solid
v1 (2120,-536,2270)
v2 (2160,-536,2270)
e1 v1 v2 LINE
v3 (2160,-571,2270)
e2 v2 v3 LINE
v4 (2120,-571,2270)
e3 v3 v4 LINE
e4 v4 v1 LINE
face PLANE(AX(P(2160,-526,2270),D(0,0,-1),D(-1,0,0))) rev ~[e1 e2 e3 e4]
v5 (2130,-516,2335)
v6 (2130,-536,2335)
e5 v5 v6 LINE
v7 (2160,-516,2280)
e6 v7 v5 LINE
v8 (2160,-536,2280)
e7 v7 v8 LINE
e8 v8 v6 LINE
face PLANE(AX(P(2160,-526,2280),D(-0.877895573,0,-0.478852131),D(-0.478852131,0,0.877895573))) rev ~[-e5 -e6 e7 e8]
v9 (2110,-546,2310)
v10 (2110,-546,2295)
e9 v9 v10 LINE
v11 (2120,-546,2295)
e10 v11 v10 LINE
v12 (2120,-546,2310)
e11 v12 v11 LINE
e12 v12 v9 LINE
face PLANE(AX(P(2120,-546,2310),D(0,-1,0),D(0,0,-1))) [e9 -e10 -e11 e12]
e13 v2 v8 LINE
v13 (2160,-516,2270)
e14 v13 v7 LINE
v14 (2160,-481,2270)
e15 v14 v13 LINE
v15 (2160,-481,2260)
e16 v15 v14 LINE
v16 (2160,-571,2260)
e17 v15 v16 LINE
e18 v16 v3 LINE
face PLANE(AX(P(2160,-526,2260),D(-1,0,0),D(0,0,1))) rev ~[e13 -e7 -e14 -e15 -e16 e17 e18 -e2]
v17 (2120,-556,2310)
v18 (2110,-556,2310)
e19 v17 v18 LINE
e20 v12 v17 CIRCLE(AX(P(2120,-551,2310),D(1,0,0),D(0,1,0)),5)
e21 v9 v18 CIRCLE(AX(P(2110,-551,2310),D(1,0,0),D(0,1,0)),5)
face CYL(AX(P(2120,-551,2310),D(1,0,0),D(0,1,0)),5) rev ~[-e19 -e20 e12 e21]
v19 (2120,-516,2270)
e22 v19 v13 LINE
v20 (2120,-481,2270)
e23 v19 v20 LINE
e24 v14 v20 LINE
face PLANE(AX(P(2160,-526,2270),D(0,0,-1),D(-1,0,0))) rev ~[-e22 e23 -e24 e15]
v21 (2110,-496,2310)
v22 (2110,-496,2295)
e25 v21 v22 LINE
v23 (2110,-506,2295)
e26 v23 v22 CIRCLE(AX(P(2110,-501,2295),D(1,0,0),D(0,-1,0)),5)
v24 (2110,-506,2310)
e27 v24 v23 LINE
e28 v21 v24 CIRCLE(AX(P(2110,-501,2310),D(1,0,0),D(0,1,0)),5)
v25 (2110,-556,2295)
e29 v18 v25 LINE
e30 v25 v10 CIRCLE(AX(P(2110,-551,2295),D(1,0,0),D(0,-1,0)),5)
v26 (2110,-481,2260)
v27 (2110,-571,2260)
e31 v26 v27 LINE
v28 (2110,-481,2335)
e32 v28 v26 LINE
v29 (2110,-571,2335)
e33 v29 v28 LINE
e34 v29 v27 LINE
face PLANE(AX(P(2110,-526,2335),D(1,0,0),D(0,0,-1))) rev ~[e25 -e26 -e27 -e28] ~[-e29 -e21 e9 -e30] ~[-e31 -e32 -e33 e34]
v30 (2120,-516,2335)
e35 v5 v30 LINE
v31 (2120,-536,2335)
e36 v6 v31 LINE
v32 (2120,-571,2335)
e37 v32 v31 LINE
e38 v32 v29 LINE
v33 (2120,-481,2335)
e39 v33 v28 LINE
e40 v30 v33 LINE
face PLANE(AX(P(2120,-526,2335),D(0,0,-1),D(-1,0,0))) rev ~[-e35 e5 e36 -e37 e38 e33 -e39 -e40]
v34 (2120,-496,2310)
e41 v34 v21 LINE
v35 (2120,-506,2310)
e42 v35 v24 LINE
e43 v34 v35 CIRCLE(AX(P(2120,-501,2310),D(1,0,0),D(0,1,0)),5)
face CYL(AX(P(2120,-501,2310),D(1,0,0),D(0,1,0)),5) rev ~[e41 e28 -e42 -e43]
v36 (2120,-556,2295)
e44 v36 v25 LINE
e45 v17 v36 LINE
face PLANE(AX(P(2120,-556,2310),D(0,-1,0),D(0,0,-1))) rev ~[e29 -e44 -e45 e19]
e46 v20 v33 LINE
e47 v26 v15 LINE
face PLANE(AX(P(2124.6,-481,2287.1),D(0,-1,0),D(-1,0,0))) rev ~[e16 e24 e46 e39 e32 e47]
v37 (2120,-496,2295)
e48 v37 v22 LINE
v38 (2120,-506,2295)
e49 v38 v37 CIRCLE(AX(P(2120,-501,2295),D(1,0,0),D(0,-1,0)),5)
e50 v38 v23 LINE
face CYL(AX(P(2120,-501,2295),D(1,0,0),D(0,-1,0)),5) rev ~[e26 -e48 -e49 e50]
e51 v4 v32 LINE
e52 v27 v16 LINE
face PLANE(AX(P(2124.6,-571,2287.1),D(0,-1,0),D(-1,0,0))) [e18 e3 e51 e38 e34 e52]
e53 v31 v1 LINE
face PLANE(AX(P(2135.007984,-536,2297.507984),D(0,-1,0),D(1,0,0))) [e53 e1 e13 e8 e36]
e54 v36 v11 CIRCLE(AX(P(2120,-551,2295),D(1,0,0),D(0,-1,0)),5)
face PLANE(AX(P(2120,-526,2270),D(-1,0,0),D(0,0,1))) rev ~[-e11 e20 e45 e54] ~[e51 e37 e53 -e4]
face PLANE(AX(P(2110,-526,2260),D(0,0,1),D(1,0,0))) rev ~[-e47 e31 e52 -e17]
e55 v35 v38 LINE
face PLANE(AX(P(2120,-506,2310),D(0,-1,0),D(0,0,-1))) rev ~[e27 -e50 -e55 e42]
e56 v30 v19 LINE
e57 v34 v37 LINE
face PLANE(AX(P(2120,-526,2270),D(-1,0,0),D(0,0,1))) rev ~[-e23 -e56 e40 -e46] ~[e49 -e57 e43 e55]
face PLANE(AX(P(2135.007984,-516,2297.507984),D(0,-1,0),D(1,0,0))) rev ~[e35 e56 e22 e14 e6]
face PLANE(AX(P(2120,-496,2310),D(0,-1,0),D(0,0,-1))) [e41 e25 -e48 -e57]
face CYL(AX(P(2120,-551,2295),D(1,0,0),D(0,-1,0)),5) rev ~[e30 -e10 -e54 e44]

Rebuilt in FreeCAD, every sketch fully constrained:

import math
import FreeCAD as App
import Part
import Sketcher

V = App.Vector
Q = App.Units.Quantity


def add_polygon(sketch, points):
    """Adds a closed chain of lines whose ends are joined by coincident constraints."""
    first, n = sketch.GeometryCount, len(points)
    for a, b in zip(points, points[1:] + points[:1]):
        sketch.addGeometry(Part.LineSegment(App.Vector(*a, 0), App.Vector(*b, 0)), False)
    for i in range(n):
        sketch.addConstraint(Sketcher.Constraint("Coincident", first + i, 2, first + (i + 1) % n, 1))

doc = App.newDocument("Part")
params = doc.addObject("Spreadsheet::Sheet", "Params")
for row, (alias, value) in enumerate([
    ("sketch1_width", "10 mm"),
    ("sketch1_width2", "40 mm"),
    ("sketch1_height", "75 mm"),
    ("pad1_length", "90 mm"),
    ("sketch2_radius", "5 mm"),
    ("sketch2_height", "15 mm"),
    ("sketch3_width", "40 mm"),
    ("sketch3_width2", "10 mm"),
    ("sketch3_height", "65 mm"),
    ("pad2_length", "20 mm"),
], start=1):
    params.set(f"A{row}", alias)
    params.set(f"B{row}", "=" + value)
    params.setAlias(f"B{row}", alias)

body = doc.addObject("PartDesign::Body", "Body")

# Sketch on XZ plane
sketch1 = body.newObject("Sketcher::SketchObject", "Sketch")
sketch1.AttachmentSupport = (doc.getObject("XZ_Plane"), [""])
sketch1.MapMode = "FlatFace"
sketch1.AttachmentOffset = App.Placement(V(0, 0, 526), App.Rotation())
add_polygon(sketch1, [(2110, 2260), (2110, 2335), (2120, 2335), (2120, 2270), (2160, 2270), (2160, 2260)])  # lines 0-5
sketch1.addConstraint(Sketcher.Constraint("Vertical", 0))
sketch1.addConstraint(Sketcher.Constraint("Horizontal", 1))
sketch1.addConstraint(Sketcher.Constraint("Vertical", 2))
sketch1.addConstraint(Sketcher.Constraint("Horizontal", 3))
sketch1.addConstraint(Sketcher.Constraint("Vertical", 4))
sketch1.addConstraint(Sketcher.Constraint("Horizontal", 5))
sketch1.addConstraint(Sketcher.Constraint("Equal", 1, 4))
sketch1.addConstraint(Sketcher.Constraint("DistanceX", 1, 1, 1, 2, Q("10 mm")))
sketch1.addConstraint(Sketcher.Constraint("DistanceX", 3, 1, 3, 2, Q("40 mm")))
sketch1.addConstraint(Sketcher.Constraint("DistanceY", 0, 1, 0, 2, Q("75 mm")))
sketch1.addConstraint(Sketcher.Constraint("DistanceX", -1, 1, 0, 2, Q("2110 mm")))
sketch1.addConstraint(Sketcher.Constraint("DistanceY", -1, 1, 0, 2, Q("2335 mm")))
sketch1.setExpression("Constraints[13]", "Params.sketch1_width")
sketch1.setExpression("Constraints[14]", "Params.sketch1_width2")
sketch1.setExpression("Constraints[15]", "Params.sketch1_height")
pad1 = body.newObject("PartDesign::Pad", "Pad")
pad1.Profile = sketch1
pad1.setExpression("Length", "Params.pad1_length")
pad1.Midplane = True

# Sketch on YZ plane
sketch2 = body.newObject("Sketcher::SketchObject", "Sketch001")
sketch2.AttachmentSupport = (doc.getObject("YZ_Plane"), [""])
sketch2.MapMode = "FlatFace"
sketch2.AttachmentOffset = App.Placement(V(0, 0, 2120), App.Rotation())
sketch2.addGeometry(Part.ArcOfCircle(Part.Circle(V(-551, 2310, 0), V(0, 0, 1), 5), math.radians(0), math.radians(180)), False)
sketch2.addGeometry(Part.LineSegment(V(-556, 2310, 0), V(-556, 2295, 0)), False)
sketch2.addGeometry(Part.ArcOfCircle(Part.Circle(V(-551, 2295, 0), V(0, 0, 1), 5), math.radians(180), math.radians(360)), False)
sketch2.addGeometry(Part.LineSegment(V(-546, 2295, 0), V(-546, 2310, 0)), False)
sketch2.addGeometry(Part.ArcOfCircle(Part.Circle(V(-501, 2310, 0), V(0, 0, 1), 5), math.radians(0), math.radians(180)), False)
sketch2.addGeometry(Part.LineSegment(V(-506, 2310, 0), V(-506, 2295, 0)), False)
sketch2.addGeometry(Part.ArcOfCircle(Part.Circle(V(-501, 2295, 0), V(0, 0, 1), 5), math.radians(180), math.radians(360)), False)
sketch2.addGeometry(Part.LineSegment(V(-496, 2295, 0), V(-496, 2310, 0)), False)
sketch2.addConstraint(Sketcher.Constraint("Tangent", 0, 2, 1, 1))
sketch2.addConstraint(Sketcher.Constraint("Tangent", 1, 2, 2, 1))
sketch2.addConstraint(Sketcher.Constraint("Tangent", 2, 2, 3, 1))
sketch2.addConstraint(Sketcher.Constraint("Tangent", 3, 2, 0, 1))
sketch2.addConstraint(Sketcher.Constraint("Tangent", 4, 2, 5, 1))
sketch2.addConstraint(Sketcher.Constraint("Tangent", 5, 2, 6, 1))
sketch2.addConstraint(Sketcher.Constraint("Tangent", 6, 2, 7, 1))
sketch2.addConstraint(Sketcher.Constraint("Tangent", 7, 2, 4, 1))
sketch2.addConstraint(Sketcher.Constraint("Vertical", 1))
sketch2.addConstraint(Sketcher.Constraint("Vertical", 3))
sketch2.addConstraint(Sketcher.Constraint("Vertical", 5))
sketch2.addConstraint(Sketcher.Constraint("Vertical", 7))
sketch2.addConstraint(Sketcher.Constraint("Equal", 2, 4))
sketch2.addConstraint(Sketcher.Constraint("Horizontal", 0, 3, 4, 3))
sketch2.addConstraint(Sketcher.Constraint("Horizontal", 2, 3, 6, 3))
sketch2.addConstraint(Sketcher.Constraint("Radius", 0, Q("5 mm")))
sketch2.addConstraint(Sketcher.Constraint("DistanceY", 1, 2, 1, 1, Q("15 mm")))
sketch2.addConstraint(Sketcher.Constraint("DistanceX", 0, 3, -1, 1, Q("551 mm")))
sketch2.addConstraint(Sketcher.Constraint("DistanceY", -1, 1, 0, 3, Q("2310 mm")))
sketch2.addConstraint(Sketcher.Constraint("DistanceX", 4, 3, -1, 1, Q("501 mm")))
sketch2.setExpression("Constraints[15]", "Params.sketch2_radius")
sketch2.setExpression("Constraints[16]", "Params.sketch2_height")
pocket1 = body.newObject("PartDesign::Pocket", "Pocket")
pocket1.Profile = sketch2
pocket1.Type = "ThroughAll"

# Sketch on XZ plane
sketch3 = body.newObject("Sketcher::SketchObject", "Sketch002")
sketch3.AttachmentSupport = (doc.getObject("XZ_Plane"), [""])
sketch3.MapMode = "FlatFace"
sketch3.AttachmentOffset = App.Placement(V(0, 0, 526), App.Rotation())
add_polygon(sketch3, [(2160, 2280), (2160, 2270), (2120, 2270), (2120, 2335), (2130, 2335)])  # lines 0-4
sketch3.addConstraint(Sketcher.Constraint("Vertical", 0))
sketch3.addConstraint(Sketcher.Constraint("Horizontal", 1))
sketch3.addConstraint(Sketcher.Constraint("Vertical", 2))
sketch3.addConstraint(Sketcher.Constraint("Horizontal", 3))
sketch3.addConstraint(Sketcher.Constraint("Equal", 3, 0))
sketch3.addConstraint(Sketcher.Constraint("DistanceX", 1, 2, 1, 1, Q("40 mm")))
sketch3.addConstraint(Sketcher.Constraint("DistanceX", 3, 1, 3, 2, Q("10 mm")))
sketch3.addConstraint(Sketcher.Constraint("DistanceY", 2, 1, 2, 2, Q("65 mm")))
sketch3.addConstraint(Sketcher.Constraint("DistanceX", -1, 1, 0, 2, Q("2160 mm")))
sketch3.addConstraint(Sketcher.Constraint("DistanceY", -1, 1, 0, 2, Q("2270 mm")))
sketch3.setExpression("Constraints[10]", "Params.sketch3_width")
sketch3.setExpression("Constraints[11]", "Params.sketch3_width2")
sketch3.setExpression("Constraints[12]", "Params.sketch3_height")
pad2 = body.newObject("PartDesign::Pad", "Pad001")
pad2.Profile = sketch3
pad2.setExpression("Length", "Params.pad2_length")
pad2.Midplane = True

doc.recompute()
